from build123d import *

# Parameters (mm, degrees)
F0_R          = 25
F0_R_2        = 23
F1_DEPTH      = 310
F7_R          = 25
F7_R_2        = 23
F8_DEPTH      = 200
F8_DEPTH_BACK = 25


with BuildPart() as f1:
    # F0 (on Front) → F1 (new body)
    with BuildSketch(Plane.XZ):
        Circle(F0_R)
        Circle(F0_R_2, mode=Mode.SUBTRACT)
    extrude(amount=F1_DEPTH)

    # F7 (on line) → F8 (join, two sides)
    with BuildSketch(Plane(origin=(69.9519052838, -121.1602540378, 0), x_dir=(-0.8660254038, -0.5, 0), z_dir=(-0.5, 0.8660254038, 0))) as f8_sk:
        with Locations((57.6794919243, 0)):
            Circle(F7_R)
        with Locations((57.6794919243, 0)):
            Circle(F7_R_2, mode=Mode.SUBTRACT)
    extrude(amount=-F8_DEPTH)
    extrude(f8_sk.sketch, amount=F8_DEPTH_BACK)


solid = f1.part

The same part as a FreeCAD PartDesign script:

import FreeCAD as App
import Part
import Sketcher
from FreeCAD import Vector
Q = App.Units.Quantity

doc = App.newDocument("Part")
body = doc.addObject("PartDesign::Body", "Body")

sketch1 = body.newObject("Sketcher::SketchObject", "Sketch")
sketch1.AttachmentSupport = (doc.getObject("XZ_Plane"), [""])
sketch1.MapMode = "FlatFace"
sketch1.addGeometry(Part.Circle(Vector(0, 0, 0), Vector(0, 0, 1), 25), False)
sketch1.addGeometry(Part.Circle(Vector(0, 0, 0), Vector(0, 0, 1), 23), False)
sketch1.addConstraint(Sketcher.Constraint("Coincident", 0, 3, -1, 1))
sketch1.addConstraint(Sketcher.Constraint("Coincident", 1, 3, -1, 1))
sketch1.addConstraint(Sketcher.Constraint("Diameter", 0, Q("50 mm")))
sketch1.addConstraint(Sketcher.Constraint("Diameter", 1, Q("46 mm")))
pad1 = body.newObject("PartDesign::Pad", "Pad")
pad1.Profile = sketch1
pad1.Length = 310

sketch2 = body.newObject("Sketcher::SketchObject", "Sketch001")
sketch2.Placement = App.Placement(Vector(69.951905, -121.160254, 0), App.Rotation(Vector(-0.866025404, -0.5, 0), Vector(0, 0, 1), Vector(-0.5, 0.866025404, 0), "ZXY"))
sketch2.addGeometry(Part.Circle(Vector(58, 0, 0), Vector(0, 0, 1), 25), False)
sketch2.addGeometry(Part.Circle(Vector(58, 0, 0), Vector(0, 0, 1), 23), False)
sketch2.addConstraint(Sketcher.Constraint("Coincident", 1, 3, 0, 3))
sketch2.addConstraint(Sketcher.Constraint("PointOnObject", 0, 3, -1))
sketch2.addConstraint(Sketcher.Constraint("Diameter", 0, Q("50 mm")))
sketch2.addConstraint(Sketcher.Constraint("Diameter", 1, Q("46 mm")))
sketch2.addConstraint(Sketcher.Constraint("DistanceX", -1, 1, 0, 3, Q("57.679492 mm")))
pad2 = body.newObject("PartDesign::Pad", "Pad001")
pad2.Profile = sketch2
pad2.Type = "TwoLengths"
pad2.Length = 200
pad2.Length2 = 25
pad2.Reversed = True

doc.recompute()
